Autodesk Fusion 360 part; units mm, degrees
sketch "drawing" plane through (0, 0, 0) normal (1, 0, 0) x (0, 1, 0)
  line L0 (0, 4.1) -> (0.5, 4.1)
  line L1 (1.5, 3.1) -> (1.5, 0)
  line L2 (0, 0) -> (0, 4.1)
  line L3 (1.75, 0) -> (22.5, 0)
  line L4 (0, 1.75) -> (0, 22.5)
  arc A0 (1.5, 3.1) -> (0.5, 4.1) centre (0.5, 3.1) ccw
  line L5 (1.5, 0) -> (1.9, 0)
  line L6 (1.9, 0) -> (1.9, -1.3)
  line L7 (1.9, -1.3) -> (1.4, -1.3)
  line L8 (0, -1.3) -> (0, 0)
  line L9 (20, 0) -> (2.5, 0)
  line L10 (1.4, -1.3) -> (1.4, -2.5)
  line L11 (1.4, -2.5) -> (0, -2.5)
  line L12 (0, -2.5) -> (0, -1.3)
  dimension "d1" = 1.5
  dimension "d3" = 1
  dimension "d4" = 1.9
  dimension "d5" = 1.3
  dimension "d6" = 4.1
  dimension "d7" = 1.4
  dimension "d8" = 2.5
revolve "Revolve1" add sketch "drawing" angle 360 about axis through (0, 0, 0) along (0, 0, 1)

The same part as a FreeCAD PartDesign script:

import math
import FreeCAD as App
import Part
import Sketcher
from FreeCAD import Vector

doc = App.newDocument("Part")
body = doc.addObject("PartDesign::Body", "Body")

sketch1 = doc.addObject("Sketcher::SketchObject", "Sketch")
body.addObject(sketch1)
sketch1.AttachmentSupport = (doc.YZ_Plane, [""])
sketch1.MapMode = "FlatFace"
sketch1.addGeometry(Part.LineSegment(Vector(0.5, 4.1, 0), Vector(0, 4.1, 0)), False)
sketch1.addGeometry(Part.LineSegment(Vector(0, 4.1, 0), Vector(0, -2.5, 0)), False)
sketch1.addGeometry(Part.LineSegment(Vector(0, -2.5, 0), Vector(1.4, -2.5, 0)), False)
sketch1.addGeometry(Part.LineSegment(Vector(1.4, -2.5, 0), Vector(1.4, -1.3, 0)), False)
sketch1.addGeometry(Part.LineSegment(Vector(1.4, -1.3, 0), Vector(1.9, -1.3, 0)), False)
sketch1.addGeometry(Part.LineSegment(Vector(1.9, -1.3, 0), Vector(1.9, 0, 0)), False)
sketch1.addGeometry(Part.LineSegment(Vector(1.9, 0, 0), Vector(1.5, 0, 0)), False)
sketch1.addGeometry(Part.LineSegment(Vector(1.5, 0, 0), Vector(1.5, 3.1, 0)), False)
sketch1.addGeometry(Part.ArcOfCircle(Part.Circle(Vector(0.5, 3.1, 0), Vector(0, 0, 1), 1), math.radians(0), math.radians(90)), False)
sketch1.addConstraint(Sketcher.Constraint("Coincident", 0, 2, 1, 1))
sketch1.addConstraint(Sketcher.Constraint("Coincident", 1, 2, 2, 1))
sketch1.addConstraint(Sketcher.Constraint("Coincident", 2, 2, 3, 1))
sketch1.addConstraint(Sketcher.Constraint("Coincident", 3, 2, 4, 1))
sketch1.addConstraint(Sketcher.Constraint("Coincident", 4, 2, 5, 1))
sketch1.addConstraint(Sketcher.Constraint("Coincident", 5, 2, 6, 1))
sketch1.addConstraint(Sketcher.Constraint("Coincident", 6, 2, 7, 1))
sketch1.addConstraint(Sketcher.Constraint("Tangent", 7, 2, 8, 1))
sketch1.addConstraint(Sketcher.Constraint("Tangent", 8, 2, 0, 1))
sketch1.addConstraint(Sketcher.Constraint("Horizontal", 0))
sketch1.addConstraint(Sketcher.Constraint("Vertical", 1))
sketch1.addConstraint(Sketcher.Constraint("Horizontal", 2))
sketch1.addConstraint(Sketcher.Constraint("Vertical", 3))
sketch1.addConstraint(Sketcher.Constraint("Horizontal", 4))
sketch1.addConstraint(Sketcher.Constraint("Vertical", 5))
sketch1.addConstraint(Sketcher.Constraint("Horizontal", 6))
sketch1.addConstraint(Sketcher.Constraint("Vertical", 7))
sketch1.addConstraint(Sketcher.Constraint("PointOnObject", 0, 2, -2))
sketch1.addConstraint(Sketcher.Constraint("PointOnObject", 5, 2, -1))
sketch1.addConstraint(Sketcher.Constraint("Equal", 0, 4))
sketch1.addConstraint(Sketcher.Constraint("Radius", 8, 1.0))
sketch1.addConstraint(Sketcher.Constraint("DistanceX", 2, 1, 2, 2, 1.4))
sketch1.addConstraint(Sketcher.Constraint("DistanceY", 5, 1, 5, 2, 1.3))
sketch1.addConstraint(Sketcher.Constraint("DistanceY", -1, 1, 0, 2, 4.1))
sketch1.addConstraint(Sketcher.Constraint("DistanceY", 1, 2, -1, 1, 2.5))
sketch1.addConstraint(Sketcher.Constraint("DistanceX", -1, 1, 4, 2, 1.9))
revolution = doc.addObject("PartDesign::Revolution", "Revolution")
body.addObject(revolution)
revolution.Profile = sketch1
revolution.ReferenceAxis = (sketch1, ["V_Axis"])
revolution.Angle = 360

doc.recompute()
